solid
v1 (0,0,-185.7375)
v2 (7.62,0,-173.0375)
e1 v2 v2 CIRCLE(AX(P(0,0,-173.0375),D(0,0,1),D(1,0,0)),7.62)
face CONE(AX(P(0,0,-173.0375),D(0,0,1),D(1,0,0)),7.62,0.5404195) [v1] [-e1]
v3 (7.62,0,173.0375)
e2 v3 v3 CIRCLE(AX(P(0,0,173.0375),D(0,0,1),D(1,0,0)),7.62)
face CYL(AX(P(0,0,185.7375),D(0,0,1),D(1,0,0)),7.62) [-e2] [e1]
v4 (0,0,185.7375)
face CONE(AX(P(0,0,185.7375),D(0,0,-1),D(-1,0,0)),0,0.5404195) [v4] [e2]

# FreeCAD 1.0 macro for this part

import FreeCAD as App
import Part
import Sketcher
from FreeCAD import Vector
Q = App.Units.Quantity

doc = App.newDocument("Part")
body = doc.addObject("PartDesign::Body", "Body")

# Sketch on XZ plane
sketch1 = body.newObject("Sketcher::SketchObject", "Sketch")
sketch1.AttachmentSupport = (doc.getObject("XZ_Plane"), [""])
sketch1.MapMode = "FlatFace"
sketch1.addGeometry([
    Part.LineSegment(Vector(8, 173, 0), Vector(8, -173, 0)),
    Part.LineSegment(Vector(8, -173, 0), Vector(0, -186, 0)),
    Part.LineSegment(Vector(0, -186, 0), Vector(0, 186, 0)),
    Part.LineSegment(Vector(0, 186, 0), Vector(8, 173, 0)),
], False)
sketch1.addConstraint([
    Sketcher.Constraint("Coincident", 0, 2, 1, 1),
    Sketcher.Constraint("Coincident", 1, 2, 2, 1),
    Sketcher.Constraint("Coincident", 2, 2, 3, 1),
    Sketcher.Constraint("Coincident", 3, 2, 0, 1),
    Sketcher.Constraint("Vertical", 0),
    Sketcher.Constraint("Vertical", 2),
    Sketcher.Constraint("Symmetric", 1, 2, 2, 2, -1, 1),
    Sketcher.Constraint("Equal", 1, 3),
    Sketcher.Constraint("DistanceX", -1, 1, 0, 2, Q("0.3 in")),
    Sketcher.Constraint("DistanceY", 1, 2, 0, 2, Q("0.5 in")),
    Sketcher.Constraint("DistanceY", 0, 2, 0, 1, Q("13.625 in")),
])
revolution = body.newObject("PartDesign::Revolution", "Revolution")
revolution.Profile = sketch1
revolution.ReferenceAxis = (sketch1, ["V_Axis"])
revolution.Angle = 360

doc.recompute()
